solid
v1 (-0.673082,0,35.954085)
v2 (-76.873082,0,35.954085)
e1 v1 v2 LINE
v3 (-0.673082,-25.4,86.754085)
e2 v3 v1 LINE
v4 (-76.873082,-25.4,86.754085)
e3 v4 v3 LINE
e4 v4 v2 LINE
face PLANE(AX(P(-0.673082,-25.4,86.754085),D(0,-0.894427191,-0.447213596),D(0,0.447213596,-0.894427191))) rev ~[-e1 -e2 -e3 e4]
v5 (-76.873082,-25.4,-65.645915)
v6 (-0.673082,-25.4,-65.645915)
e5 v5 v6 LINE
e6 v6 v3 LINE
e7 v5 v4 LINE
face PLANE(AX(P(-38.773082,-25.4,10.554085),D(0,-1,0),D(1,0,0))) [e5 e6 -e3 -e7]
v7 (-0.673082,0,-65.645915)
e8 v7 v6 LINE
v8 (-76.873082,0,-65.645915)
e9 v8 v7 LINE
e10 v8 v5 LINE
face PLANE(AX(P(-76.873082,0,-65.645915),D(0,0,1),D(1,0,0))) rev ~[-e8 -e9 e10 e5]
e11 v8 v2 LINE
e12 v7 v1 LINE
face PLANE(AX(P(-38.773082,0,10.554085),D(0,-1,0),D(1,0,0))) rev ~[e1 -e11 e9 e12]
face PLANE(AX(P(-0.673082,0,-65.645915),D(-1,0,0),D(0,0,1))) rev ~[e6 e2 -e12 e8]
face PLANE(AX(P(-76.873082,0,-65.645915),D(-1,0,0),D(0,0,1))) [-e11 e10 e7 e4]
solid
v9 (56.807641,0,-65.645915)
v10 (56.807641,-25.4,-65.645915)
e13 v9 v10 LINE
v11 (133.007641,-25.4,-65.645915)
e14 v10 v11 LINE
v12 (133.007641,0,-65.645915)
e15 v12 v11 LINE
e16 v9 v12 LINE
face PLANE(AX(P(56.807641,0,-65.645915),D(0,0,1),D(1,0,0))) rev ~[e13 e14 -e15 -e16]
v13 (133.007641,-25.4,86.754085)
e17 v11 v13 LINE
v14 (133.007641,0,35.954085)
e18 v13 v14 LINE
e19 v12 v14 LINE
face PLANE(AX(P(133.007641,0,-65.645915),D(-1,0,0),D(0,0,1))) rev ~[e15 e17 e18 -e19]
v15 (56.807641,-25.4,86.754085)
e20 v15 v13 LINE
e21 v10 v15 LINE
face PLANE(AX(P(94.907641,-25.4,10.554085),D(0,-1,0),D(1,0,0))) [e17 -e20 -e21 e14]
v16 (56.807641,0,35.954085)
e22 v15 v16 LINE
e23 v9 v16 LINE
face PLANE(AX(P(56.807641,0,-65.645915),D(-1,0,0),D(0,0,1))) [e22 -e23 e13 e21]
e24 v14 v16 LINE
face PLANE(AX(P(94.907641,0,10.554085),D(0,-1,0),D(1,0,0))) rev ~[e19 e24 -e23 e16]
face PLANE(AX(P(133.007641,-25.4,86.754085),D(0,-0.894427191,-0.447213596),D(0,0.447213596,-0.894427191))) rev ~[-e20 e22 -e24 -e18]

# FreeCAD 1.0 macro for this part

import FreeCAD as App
import Part
import Sketcher
from FreeCAD import Vector
Q = App.Units.Quantity

doc = App.newDocument("Part")
body = doc.addObject("PartDesign::Body", "Body")

# Sketch on XZ plane
sketch1 = body.newObject("Sketcher::SketchObject", "Sketch")
sketch1.AttachmentSupport = (doc.getObject("XZ_Plane"), [""])
sketch1.MapMode = "FlatFace"
sketch1.addGeometry([
    Part.LineSegment(Vector(-77, 87, 0), Vector(-77, -66, 0)),
    Part.LineSegment(Vector(-77, -66, 0), Vector(-1, -66, 0)),
    Part.LineSegment(Vector(-1, -66, 0), Vector(-1, 87, 0)),
    Part.LineSegment(Vector(-1, 87, 0), Vector(-77, 87, 0)),
], False)
sketch1.addConstraint([
    Sketcher.Constraint("Coincident", 0, 2, 1, 1),
    Sketcher.Constraint("Coincident", 1, 2, 2, 1),
    Sketcher.Constraint("Coincident", 2, 2, 3, 1),
    Sketcher.Constraint("Coincident", 3, 2, 0, 1),
    Sketcher.Constraint("Vertical", 0),
    Sketcher.Constraint("Horizontal", 1),
    Sketcher.Constraint("Vertical", 2),
    Sketcher.Constraint("Horizontal", 3),
    Sketcher.Constraint("DistanceX", 1, 1, 1, 2, Q("3 in")),
    Sketcher.Constraint("DistanceY", 0, 2, 0, 1, Q("6 in")),
    Sketcher.Constraint("DistanceX", 0, 2, -1, 1, Q("76.873082 mm")),
    Sketcher.Constraint("DistanceY", 0, 2, -1, 1, Q("65.645915 mm")),
])
pad1 = body.newObject("PartDesign::Pad", "Pad")
pad1.Profile = sketch1
pad1.Length = Q("1 in")

# Sketch on YZ plane
sketch2 = body.newObject("Sketcher::SketchObject", "Sketch001")
sketch2.AttachmentSupport = (doc.getObject("YZ_Plane"), [""])
sketch2.MapMode = "FlatFace"
sketch2.AttachmentOffset = App.Placement(Vector(0, 0, -0.673082), App.Rotation())
sketch2.addGeometry([
    Part.LineSegment(Vector(0, 87, 0), Vector(-25, 87, 0)),
    Part.LineSegment(Vector(-25, 87, 0), Vector(0, 36, 0)),
    Part.LineSegment(Vector(0, 36, 0), Vector(0, 87, 0)),
], False)
sketch2.addConstraint([
    Sketcher.Constraint("Coincident", 0, 2, 1, 1),
    Sketcher.Constraint("Coincident", 1, 2, 2, 1),
    Sketcher.Constraint("Coincident", 2, 2, 0, 1),
    Sketcher.Constraint("Horizontal", 0),
    Sketcher.Constraint("Vertical", 2),
    Sketcher.Constraint("PointOnObject", 1, 2, -2),
    Sketcher.Constraint("DistanceX", 0, 2, 0, 1, Q("1 in")),
    Sketcher.Constraint("DistanceY", 2, 1, 2, 2, Q("2 in")),
    Sketcher.Constraint("DistanceY", -1, 1, 0, 2, Q("86.754085 mm")),
])
pocket1 = body.newObject("PartDesign::Pocket", "Pocket")
pocket1.Profile = sketch2
pocket1.Length = Q("3 in")
body2 = doc.addObject("PartDesign::Body", "Body001")

# Sketch on XZ plane
sketch3 = body2.newObject("Sketcher::SketchObject", "Sketch002")
sketch3.AttachmentSupport = (doc.getObject("XZ_Plane001"), [""])
sketch3.MapMode = "FlatFace"
sketch3.addGeometry([
    Part.LineSegment(Vector(57, 87, 0), Vector(57, -66, 0)),
    Part.LineSegment(Vector(57, -66, 0), Vector(133, -66, 0)),
    Part.LineSegment(Vector(133, -66, 0), Vector(133, 87, 0)),
    Part.LineSegment(Vector(133, 87, 0), Vector(57, 87, 0)),
], False)
sketch3.addConstraint([
    Sketcher.Constraint("Coincident", 0, 2, 1, 1),
    Sketcher.Constraint("Coincident", 1, 2, 2, 1),
    Sketcher.Constraint("Coincident", 2, 2, 3, 1),
    Sketcher.Constraint("Coincident", 3, 2, 0, 1),
    Sketcher.Constraint("Vertical", 0),
    Sketcher.Constraint("Horizontal", 1),
    Sketcher.Constraint("Vertical", 2),
    Sketcher.Constraint("Horizontal", 3),
    Sketcher.Constraint("DistanceX", 1, 1, 1, 2, Q("3 in")),
    Sketcher.Constraint("DistanceY", 0, 2, 0, 1, Q("6 in")),
    Sketcher.Constraint("DistanceX", -1, 1, 0, 2, Q("56.807641 mm")),
    Sketcher.Constraint("DistanceY", 0, 2, -1, 1, Q("65.645915 mm")),
])
pad2 = body2.newObject("PartDesign::Pad", "Pad001")
pad2.Profile = sketch3
pad2.Length = Q("1 in")

# Sketch on YZ plane
sketch4 = body2.newObject("Sketcher::SketchObject", "Sketch003")
sketch4.AttachmentSupport = (doc.getObject("YZ_Plane001"), [""])
sketch4.MapMode = "FlatFace"
sketch4.AttachmentOffset = App.Placement(Vector(0, 0, 133.007641), App.Rotation())
sketch4.addGeometry([
    Part.LineSegment(Vector(0, 87, 0), Vector(-25, 87, 0)),
    Part.LineSegment(Vector(-25, 87, 0), Vector(0, 36, 0)),
    Part.LineSegment(Vector(0, 36, 0), Vector(0, 87, 0)),
], False)
sketch4.addConstraint([
    Sketcher.Constraint("Coincident", 0, 2, 1, 1),
    Sketcher.Constraint("Coincident", 1, 2, 2, 1),
    Sketcher.Constraint("Coincident", 2, 2, 0, 1),
    Sketcher.Constraint("Horizontal", 0),
    Sketcher.Constraint("Vertical", 2),
    Sketcher.Constraint("PointOnObject", 1, 2, -2),
    Sketcher.Constraint("DistanceX", 0, 2, 0, 1, Q("1 in")),
    Sketcher.Constraint("DistanceY", 2, 1, 2, 2, Q("2 in")),
    Sketcher.Constraint("DistanceY", -1, 1, 0, 2, Q("86.754085 mm")),
])
pocket2 = body2.newObject("PartDesign::Pocket", "Pocket001")
pocket2.Profile = sketch4
pocket2.Length = Q("3 in")

doc.recompute()
